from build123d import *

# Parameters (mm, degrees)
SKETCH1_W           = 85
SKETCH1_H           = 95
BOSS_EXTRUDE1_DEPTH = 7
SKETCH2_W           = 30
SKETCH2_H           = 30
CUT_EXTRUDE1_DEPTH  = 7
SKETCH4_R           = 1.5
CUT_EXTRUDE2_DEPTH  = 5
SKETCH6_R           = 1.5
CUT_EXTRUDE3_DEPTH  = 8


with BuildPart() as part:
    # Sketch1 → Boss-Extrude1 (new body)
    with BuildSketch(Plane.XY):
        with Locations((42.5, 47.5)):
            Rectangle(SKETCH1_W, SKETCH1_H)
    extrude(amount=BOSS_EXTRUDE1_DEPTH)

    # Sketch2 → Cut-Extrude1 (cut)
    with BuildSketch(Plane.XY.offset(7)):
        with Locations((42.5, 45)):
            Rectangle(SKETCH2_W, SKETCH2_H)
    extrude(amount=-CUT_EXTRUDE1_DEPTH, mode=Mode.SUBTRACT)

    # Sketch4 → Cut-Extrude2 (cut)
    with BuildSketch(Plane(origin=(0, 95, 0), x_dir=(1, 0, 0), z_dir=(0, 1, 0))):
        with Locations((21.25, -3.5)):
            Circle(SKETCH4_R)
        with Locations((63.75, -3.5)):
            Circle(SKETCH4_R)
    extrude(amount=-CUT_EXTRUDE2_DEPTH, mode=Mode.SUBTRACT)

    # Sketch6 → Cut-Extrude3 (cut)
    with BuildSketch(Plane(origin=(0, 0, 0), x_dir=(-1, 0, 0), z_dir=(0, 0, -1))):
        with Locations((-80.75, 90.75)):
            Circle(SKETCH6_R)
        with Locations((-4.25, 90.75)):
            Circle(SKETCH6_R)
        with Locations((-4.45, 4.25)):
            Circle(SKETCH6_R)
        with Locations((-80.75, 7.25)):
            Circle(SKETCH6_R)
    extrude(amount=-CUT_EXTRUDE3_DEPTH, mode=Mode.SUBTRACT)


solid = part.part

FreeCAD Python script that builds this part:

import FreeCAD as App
import Part
import Sketcher
Q = App.Units.Quantity


def add_polygon(sketch, points):
    """Adds a closed chain of lines whose ends are joined by coincident constraints."""
    first, n = sketch.GeometryCount, len(points)
    for a, b in zip(points, points[1:] + points[:1]):
        sketch.addGeometry(Part.LineSegment(App.Vector(*a, 0), App.Vector(*b, 0)), False)
    for i in range(n):
        sketch.addConstraint(Sketcher.Constraint("Coincident", first + i, 2, first + (i + 1) % n, 1))

doc = App.newDocument("Part")
params = doc.addObject("Spreadsheet::Sheet", "Params")
for row, (alias, value) in enumerate([
    ("sketch1_width", "85 mm"),
    ("sketch1_height", "95 mm"),
    ("pad1_length", "7 mm"),
    ("sketch2_width", "30 mm"),
    ("pocket1_length", "7 mm"),
    ("sketch3_diameter", "3 mm"),
    ("pocket2_length", "5 mm"),
    ("sketch4_diameter", "3 mm"),
    ("pocket3_length", "8 mm"),
], start=1):
    params.set(f"A{row}", alias)
    params.set(f"B{row}", "=" + value)
    params.setAlias(f"B{row}", alias)

body = doc.addObject("PartDesign::Body", "Body")

sketch1 = body.newObject("Sketcher::SketchObject", "Sketch")
sketch1.AttachmentSupport = (doc.getObject("XY_Plane"), [""])
sketch1.MapMode = "FlatFace"
add_polygon(sketch1, [(0, 95), (0, 0), (85, 0), (85, 95)])
sketch1.addConstraint([
    Sketcher.Constraint("Vertical", 0),
    Sketcher.Constraint("Horizontal", 1),
    Sketcher.Constraint("Vertical", 2),
    Sketcher.Constraint("Horizontal", 3),
    Sketcher.Constraint("Coincident", 0, 2, -1, 1),
    Sketcher.Constraint("DistanceX", 1, 1, 1, 2, Q("85 mm")),
    Sketcher.Constraint("DistanceY", 0, 2, 0, 1, Q("95 mm")),
])
sketch1.setExpression("Constraints[9]", "Params.sketch1_width")
sketch1.setExpression("Constraints[10]", "Params.sketch1_height")
pad1 = body.newObject("PartDesign::Pad", "Pad")
pad1.Profile = sketch1
pad1.setExpression("Length", "Params.pad1_length")

sketch2 = body.newObject("Sketcher::SketchObject", "Sketch001")
sketch2.AttachmentSupport = (doc.getObject("XY_Plane"), [""])
sketch2.MapMode = "FlatFace"
sketch2.AttachmentOffset = App.Placement(App.Vector(0, 0, 7), App.Rotation())
add_polygon(sketch2, [(28, 60), (28, 30), (58, 30), (58, 60)])
sketch2.addConstraint([
    Sketcher.Constraint("Vertical", 0),
    Sketcher.Constraint("Horizontal", 1),
    Sketcher.Constraint("Vertical", 2),
    Sketcher.Constraint("Horizontal", 3),
    Sketcher.Constraint("Equal", 3, 0),
    Sketcher.Constraint("DistanceX", 1, 1, 1, 2, Q("30 mm")),
    Sketcher.Constraint("DistanceY", -1, 1, 0, 2, Q("30 mm")),
    Sketcher.Constraint("DistanceX", -1, 1, 0, 2, Q("27.5 mm")),
])
sketch2.setExpression("Constraints[9]", "Params.sketch2_width")
pocket1 = body.newObject("PartDesign::Pocket", "Pocket")
pocket1.Profile = sketch2
pocket1.setExpression("Length", "Params.pocket1_length")

sketch3 = body.newObject("Sketcher::SketchObject", "Sketch002")
sketch3.AttachmentSupport = (doc.getObject("XZ_Plane"), [""])
sketch3.MapMode = "FlatFace"
sketch3.AttachmentOffset = App.Placement(App.Vector(0, 0, -95), App.Rotation())
sketch3.addGeometry([
    Part.Circle(App.Vector(21.2, 3.5, 0), App.Vector(0, 0, 1), 1.5),
    Part.Circle(App.Vector(63.8, 3.5, 0), App.Vector(0, 0, 1), 1.5),
], False)
sketch3.addConstraint([
    Sketcher.Constraint("Equal", 0, 1),
    Sketcher.Constraint("Horizontal", 0, 3, 1, 3),
    Sketcher.Constraint("Diameter", 0, Q("3 mm")),
    Sketcher.Constraint("DistanceY", -1, 1, 0, 3, Q("3.5 mm")),
    Sketcher.Constraint("DistanceX", 0, 3, 1, 3, Q("42.5 mm")),
    Sketcher.Constraint("DistanceX", -1, 1, 0, 3, Q("21.25 mm")),
])
sketch3.setExpression("Constraints[2]", "Params.sketch3_diameter")
pocket2 = body.newObject("PartDesign::Pocket", "Pocket001")
pocket2.Profile = sketch3
pocket2.setExpression("Length", "Params.pocket2_length")
pocket2.Reversed = True

sketch4 = body.newObject("Sketcher::SketchObject", "Sketch003")
sketch4.AttachmentSupport = (doc.getObject("XY_Plane"), [""])
sketch4.MapMode = "FlatFace"
sketch4.addGeometry([
    Part.Circle(App.Vector(80.8, 90.8, 0), App.Vector(0, 0, 1), 1.5),
    Part.Circle(App.Vector(4.2, 90.8, 0), App.Vector(0, 0, 1), 1.5),
    Part.Circle(App.Vector(4.5, 4.2, 0), App.Vector(0, 0, 1), 1.5),
    Part.Circle(App.Vector(80.8, 7.2, 0), App.Vector(0, 0, 1), 1.5),
], False)
sketch4.addConstraint([
    Sketcher.Constraint("Equal", 0, 1),
    Sketcher.Constraint("Equal", 1, 2),
    Sketcher.Constraint("Equal", 2, 3),
    Sketcher.Constraint("Horizontal", 0, 3, 1, 3),
    Sketcher.Constraint("Vertical", 0, 3, 3, 3),
    Sketcher.Constraint("Diameter", 0, Q("3 mm")),
    Sketcher.Constraint("DistanceY", 2, 3, 3, 3, Q("3 mm")),
    Sketcher.Constraint("DistanceX", 1, 3, 0, 3, Q("76.5 mm")),
    Sketcher.Constraint("DistanceX", 1, 3, 2, 3, Q("0.2 mm")),
    Sketcher.Constraint("DistanceY", 2, 3, 1, 3, Q("86.5 mm")),
    Sketcher.Constraint("DistanceX", -1, 1, 0, 3, Q("80.75 mm")),
    Sketcher.Constraint("DistanceY", -1, 1, 0, 3, Q("90.75 mm")),
])
sketch4.setExpression("Constraints[5]", "Params.sketch4_diameter")
pocket3 = body.newObject("PartDesign::Pocket", "Pocket002")
pocket3.Profile = sketch4
pocket3.setExpression("Length", "Params.pocket3_length")
pocket3.Reversed = True

doc.recompute()
